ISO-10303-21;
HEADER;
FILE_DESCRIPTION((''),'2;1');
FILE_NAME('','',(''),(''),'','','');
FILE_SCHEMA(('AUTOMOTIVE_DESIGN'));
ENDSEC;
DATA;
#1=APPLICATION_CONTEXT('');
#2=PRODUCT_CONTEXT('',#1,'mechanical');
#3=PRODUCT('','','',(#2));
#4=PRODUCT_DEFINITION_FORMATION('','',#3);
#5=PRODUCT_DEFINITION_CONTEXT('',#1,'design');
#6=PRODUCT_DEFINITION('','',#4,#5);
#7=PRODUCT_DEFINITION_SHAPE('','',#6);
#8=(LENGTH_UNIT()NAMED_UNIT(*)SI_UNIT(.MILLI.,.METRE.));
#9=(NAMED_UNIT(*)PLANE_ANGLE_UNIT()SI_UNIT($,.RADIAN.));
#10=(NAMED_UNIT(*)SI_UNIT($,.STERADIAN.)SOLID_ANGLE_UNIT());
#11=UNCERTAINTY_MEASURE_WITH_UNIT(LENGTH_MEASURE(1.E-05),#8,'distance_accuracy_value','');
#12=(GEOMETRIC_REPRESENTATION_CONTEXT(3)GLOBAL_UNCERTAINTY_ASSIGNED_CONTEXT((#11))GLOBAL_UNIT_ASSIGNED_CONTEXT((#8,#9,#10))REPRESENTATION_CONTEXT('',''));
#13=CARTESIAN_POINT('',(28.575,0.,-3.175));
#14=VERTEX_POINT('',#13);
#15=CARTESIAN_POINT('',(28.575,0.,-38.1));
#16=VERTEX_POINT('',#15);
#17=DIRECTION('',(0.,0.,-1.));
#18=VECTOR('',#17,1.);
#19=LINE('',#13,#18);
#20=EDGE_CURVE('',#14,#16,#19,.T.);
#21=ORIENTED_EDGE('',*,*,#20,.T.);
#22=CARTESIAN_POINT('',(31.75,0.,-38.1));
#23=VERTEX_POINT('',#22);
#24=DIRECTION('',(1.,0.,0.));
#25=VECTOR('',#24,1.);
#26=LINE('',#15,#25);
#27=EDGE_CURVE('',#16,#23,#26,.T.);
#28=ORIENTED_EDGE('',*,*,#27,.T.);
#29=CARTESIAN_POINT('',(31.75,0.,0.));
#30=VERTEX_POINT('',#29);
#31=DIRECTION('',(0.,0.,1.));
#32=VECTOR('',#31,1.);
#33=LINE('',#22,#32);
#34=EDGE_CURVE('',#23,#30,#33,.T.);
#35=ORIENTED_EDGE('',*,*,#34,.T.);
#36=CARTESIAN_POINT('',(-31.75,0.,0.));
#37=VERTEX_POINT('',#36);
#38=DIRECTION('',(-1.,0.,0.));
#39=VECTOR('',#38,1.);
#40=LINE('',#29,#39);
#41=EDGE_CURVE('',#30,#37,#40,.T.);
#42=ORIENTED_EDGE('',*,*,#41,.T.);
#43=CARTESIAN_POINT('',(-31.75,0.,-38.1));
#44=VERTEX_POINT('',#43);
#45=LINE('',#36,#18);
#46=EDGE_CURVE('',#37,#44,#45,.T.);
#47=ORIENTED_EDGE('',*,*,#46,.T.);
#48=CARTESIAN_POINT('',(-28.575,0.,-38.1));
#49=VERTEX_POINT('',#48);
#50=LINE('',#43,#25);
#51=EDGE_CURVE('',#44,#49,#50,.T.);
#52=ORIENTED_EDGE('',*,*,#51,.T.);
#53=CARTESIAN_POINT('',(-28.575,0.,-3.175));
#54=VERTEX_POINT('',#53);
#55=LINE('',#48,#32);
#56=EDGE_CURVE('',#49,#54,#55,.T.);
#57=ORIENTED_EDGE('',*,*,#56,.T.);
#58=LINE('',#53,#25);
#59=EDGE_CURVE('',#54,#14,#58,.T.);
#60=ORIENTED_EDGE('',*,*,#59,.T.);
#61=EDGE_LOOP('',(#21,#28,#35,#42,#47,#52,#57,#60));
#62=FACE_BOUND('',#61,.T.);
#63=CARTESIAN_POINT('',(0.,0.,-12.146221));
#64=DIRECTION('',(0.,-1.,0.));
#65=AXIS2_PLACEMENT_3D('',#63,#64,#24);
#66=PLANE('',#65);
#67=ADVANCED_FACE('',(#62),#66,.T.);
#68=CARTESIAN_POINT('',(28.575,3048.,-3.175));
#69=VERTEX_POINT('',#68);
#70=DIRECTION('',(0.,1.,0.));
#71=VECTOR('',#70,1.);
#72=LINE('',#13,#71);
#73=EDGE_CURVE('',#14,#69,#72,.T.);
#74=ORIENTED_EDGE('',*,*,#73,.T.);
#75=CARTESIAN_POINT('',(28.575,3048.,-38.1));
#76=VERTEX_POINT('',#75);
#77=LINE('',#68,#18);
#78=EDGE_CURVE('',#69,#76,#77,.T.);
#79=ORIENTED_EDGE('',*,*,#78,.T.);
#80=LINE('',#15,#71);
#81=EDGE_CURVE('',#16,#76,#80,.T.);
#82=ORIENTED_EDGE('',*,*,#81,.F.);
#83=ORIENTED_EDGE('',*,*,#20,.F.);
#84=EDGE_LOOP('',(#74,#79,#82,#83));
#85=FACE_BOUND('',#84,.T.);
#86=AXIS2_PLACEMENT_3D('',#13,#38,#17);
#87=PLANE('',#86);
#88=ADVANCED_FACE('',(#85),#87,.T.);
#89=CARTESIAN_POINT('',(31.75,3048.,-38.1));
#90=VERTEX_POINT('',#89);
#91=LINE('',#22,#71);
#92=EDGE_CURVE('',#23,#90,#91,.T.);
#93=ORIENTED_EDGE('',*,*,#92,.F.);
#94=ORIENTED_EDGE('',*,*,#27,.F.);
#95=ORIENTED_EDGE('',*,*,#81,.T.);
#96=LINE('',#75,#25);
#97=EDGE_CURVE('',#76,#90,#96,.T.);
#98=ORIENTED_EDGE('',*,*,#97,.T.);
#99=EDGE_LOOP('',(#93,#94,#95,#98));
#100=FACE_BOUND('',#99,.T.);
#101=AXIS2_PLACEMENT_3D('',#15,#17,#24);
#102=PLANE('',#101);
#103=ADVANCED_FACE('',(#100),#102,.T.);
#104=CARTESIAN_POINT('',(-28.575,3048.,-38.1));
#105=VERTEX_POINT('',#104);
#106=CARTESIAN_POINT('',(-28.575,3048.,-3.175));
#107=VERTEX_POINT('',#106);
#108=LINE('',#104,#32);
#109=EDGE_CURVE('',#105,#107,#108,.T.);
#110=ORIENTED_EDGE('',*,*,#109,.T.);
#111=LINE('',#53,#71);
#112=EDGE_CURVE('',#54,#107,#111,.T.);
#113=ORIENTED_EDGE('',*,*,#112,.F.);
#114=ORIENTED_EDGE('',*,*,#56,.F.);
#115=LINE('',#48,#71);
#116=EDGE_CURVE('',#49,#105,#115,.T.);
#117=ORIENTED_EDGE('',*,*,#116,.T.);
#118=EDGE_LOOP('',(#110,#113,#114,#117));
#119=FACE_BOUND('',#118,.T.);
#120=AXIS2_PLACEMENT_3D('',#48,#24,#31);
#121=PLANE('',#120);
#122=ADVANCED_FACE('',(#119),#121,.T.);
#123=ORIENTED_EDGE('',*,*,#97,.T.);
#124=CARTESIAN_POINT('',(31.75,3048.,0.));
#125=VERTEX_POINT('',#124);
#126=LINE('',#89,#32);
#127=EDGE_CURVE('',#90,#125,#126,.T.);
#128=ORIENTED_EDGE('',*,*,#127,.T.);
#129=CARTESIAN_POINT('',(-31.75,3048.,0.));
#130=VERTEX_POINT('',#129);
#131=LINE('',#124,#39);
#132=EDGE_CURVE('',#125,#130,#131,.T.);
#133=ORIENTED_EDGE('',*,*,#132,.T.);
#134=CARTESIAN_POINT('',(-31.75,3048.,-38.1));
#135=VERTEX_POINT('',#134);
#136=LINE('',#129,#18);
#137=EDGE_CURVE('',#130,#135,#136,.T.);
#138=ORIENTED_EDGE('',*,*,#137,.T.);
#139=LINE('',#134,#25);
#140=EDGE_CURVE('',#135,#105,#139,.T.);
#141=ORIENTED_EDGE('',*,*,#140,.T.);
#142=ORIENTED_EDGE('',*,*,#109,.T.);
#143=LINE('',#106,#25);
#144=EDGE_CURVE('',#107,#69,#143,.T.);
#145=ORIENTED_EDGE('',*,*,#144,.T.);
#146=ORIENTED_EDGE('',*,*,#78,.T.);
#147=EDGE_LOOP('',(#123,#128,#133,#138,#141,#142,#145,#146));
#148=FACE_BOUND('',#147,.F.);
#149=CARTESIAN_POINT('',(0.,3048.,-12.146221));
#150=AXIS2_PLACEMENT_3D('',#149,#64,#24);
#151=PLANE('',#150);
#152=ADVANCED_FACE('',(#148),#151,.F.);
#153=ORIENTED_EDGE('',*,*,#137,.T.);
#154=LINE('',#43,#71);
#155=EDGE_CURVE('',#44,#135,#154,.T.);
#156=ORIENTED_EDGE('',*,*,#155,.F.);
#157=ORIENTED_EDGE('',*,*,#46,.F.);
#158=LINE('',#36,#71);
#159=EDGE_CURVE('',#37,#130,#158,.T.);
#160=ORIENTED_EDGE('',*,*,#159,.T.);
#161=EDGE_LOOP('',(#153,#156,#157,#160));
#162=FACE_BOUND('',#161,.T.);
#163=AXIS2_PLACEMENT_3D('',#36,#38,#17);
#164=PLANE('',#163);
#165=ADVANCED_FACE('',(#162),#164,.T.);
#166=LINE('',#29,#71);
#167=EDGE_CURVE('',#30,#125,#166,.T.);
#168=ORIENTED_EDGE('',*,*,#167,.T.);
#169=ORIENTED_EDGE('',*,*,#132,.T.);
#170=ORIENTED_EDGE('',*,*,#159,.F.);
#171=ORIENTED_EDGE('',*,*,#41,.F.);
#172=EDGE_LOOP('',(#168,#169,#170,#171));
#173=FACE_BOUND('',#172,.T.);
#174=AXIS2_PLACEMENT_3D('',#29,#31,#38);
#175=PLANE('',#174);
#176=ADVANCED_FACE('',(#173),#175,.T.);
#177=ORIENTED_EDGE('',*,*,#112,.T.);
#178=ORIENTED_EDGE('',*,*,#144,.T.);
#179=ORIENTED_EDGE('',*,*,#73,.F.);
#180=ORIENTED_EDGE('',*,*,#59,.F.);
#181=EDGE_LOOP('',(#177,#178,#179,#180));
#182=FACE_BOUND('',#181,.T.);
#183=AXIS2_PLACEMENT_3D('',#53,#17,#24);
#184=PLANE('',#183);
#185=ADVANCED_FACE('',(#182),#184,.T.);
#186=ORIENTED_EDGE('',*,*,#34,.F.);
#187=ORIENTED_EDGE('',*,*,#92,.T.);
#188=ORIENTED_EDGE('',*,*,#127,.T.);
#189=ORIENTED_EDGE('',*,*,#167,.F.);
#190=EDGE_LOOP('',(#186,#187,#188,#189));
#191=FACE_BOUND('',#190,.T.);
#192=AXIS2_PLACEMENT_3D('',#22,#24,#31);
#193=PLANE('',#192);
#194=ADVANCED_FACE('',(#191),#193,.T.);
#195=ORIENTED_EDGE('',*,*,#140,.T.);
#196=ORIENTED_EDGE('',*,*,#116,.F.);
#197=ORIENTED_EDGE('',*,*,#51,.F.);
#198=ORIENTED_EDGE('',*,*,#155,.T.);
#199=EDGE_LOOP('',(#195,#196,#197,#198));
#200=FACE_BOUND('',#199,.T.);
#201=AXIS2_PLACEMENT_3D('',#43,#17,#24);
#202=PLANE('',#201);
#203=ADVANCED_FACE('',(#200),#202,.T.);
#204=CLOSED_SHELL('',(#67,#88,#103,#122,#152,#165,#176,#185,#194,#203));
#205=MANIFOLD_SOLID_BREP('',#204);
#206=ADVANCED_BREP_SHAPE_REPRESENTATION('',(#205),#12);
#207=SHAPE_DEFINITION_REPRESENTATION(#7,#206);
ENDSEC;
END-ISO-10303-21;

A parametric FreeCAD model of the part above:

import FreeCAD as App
import Part
import Sketcher
from FreeCAD import Vector
Q = App.Units.Quantity

doc = App.newDocument("Part")
body = doc.addObject("PartDesign::Body", "Body")

# Sketch on XZ plane
sketch1 = doc.addObject("Sketcher::SketchObject", "Sketch")
body.addObject(sketch1)
sketch1.AttachmentSupport = (doc.XZ_Plane, [""])
sketch1.MapMode = "FlatFace"
sketch1.addGeometry(Part.LineSegment(Vector(31.8, 0, 0), Vector(-31.8, 0, 0)), False)
sketch1.addGeometry(Part.LineSegment(Vector(-31.8, 0, 0), Vector(-31.8, -38.1, 0)), False)
sketch1.addGeometry(Part.LineSegment(Vector(-31.8, -38.1, 0), Vector(-28.6, -38.1, 0)), False)
sketch1.addGeometry(Part.LineSegment(Vector(-28.6, -38.1, 0), Vector(-28.6, -3.2, 0)), False)
sketch1.addGeometry(Part.LineSegment(Vector(-28.6, -3.2, 0), Vector(28.6, -3.2, 0)), False)
sketch1.addGeometry(Part.LineSegment(Vector(28.6, -3.2, 0), Vector(28.6, -38.1, 0)), False)
sketch1.addGeometry(Part.LineSegment(Vector(28.6, -38.1, 0), Vector(31.8, -38.1, 0)), False)
sketch1.addGeometry(Part.LineSegment(Vector(31.8, -38.1, 0), Vector(31.8, 0, 0)), False)
sketch1.addConstraint(Sketcher.Constraint("Coincident", 0, 2, 1, 1))
sketch1.addConstraint(Sketcher.Constraint("Coincident", 1, 2, 2, 1))
sketch1.addConstraint(Sketcher.Constraint("Coincident", 2, 2, 3, 1))
sketch1.addConstraint(Sketcher.Constraint("Coincident", 3, 2, 4, 1))
sketch1.addConstraint(Sketcher.Constraint("Coincident", 4, 2, 5, 1))
sketch1.addConstraint(Sketcher.Constraint("Coincident", 5, 2, 6, 1))
sketch1.addConstraint(Sketcher.Constraint("Coincident", 6, 2, 7, 1))
sketch1.addConstraint(Sketcher.Constraint("Coincident", 7, 2, 0, 1))
sketch1.addConstraint(Sketcher.Constraint("Horizontal", 0))
sketch1.addConstraint(Sketcher.Constraint("Vertical", 1))
sketch1.addConstraint(Sketcher.Constraint("Horizontal", 2))
sketch1.addConstraint(Sketcher.Constraint("Vertical", 3))
sketch1.addConstraint(Sketcher.Constraint("Horizontal", 4))
sketch1.addConstraint(Sketcher.Constraint("Vertical", 5))
sketch1.addConstraint(Sketcher.Constraint("Horizontal", 6))
sketch1.addConstraint(Sketcher.Constraint("Vertical", 7))
sketch1.addConstraint(Sketcher.Constraint("Symmetric", 0, 2, 7, 2, -1, 1))
sketch1.addConstraint(Sketcher.Constraint("Symmetric", 2, 2, 5, 2, -2))
sketch1.addConstraint(Sketcher.Constraint("DistanceX", 0, 2, 0, 1, Q("2.5 in")))
sketch1.addConstraint(Sketcher.Constraint("DistanceY", 1, 2, 1, 1, Q("1.5 in")))
sketch1.addConstraint(Sketcher.Constraint("DistanceX", 4, 1, 4, 2, Q("2.25 in")))
sketch1.addConstraint(Sketcher.Constraint("DistanceY", 3, 1, 3, 2, Q("1.375 in")))
pad1 = doc.addObject("PartDesign::Pad", "Pad")
body.addObject(pad1)
pad1.Profile = sketch1
pad1.Length = Q("120 in")
pad1.Reversed = True

doc.recompute()
